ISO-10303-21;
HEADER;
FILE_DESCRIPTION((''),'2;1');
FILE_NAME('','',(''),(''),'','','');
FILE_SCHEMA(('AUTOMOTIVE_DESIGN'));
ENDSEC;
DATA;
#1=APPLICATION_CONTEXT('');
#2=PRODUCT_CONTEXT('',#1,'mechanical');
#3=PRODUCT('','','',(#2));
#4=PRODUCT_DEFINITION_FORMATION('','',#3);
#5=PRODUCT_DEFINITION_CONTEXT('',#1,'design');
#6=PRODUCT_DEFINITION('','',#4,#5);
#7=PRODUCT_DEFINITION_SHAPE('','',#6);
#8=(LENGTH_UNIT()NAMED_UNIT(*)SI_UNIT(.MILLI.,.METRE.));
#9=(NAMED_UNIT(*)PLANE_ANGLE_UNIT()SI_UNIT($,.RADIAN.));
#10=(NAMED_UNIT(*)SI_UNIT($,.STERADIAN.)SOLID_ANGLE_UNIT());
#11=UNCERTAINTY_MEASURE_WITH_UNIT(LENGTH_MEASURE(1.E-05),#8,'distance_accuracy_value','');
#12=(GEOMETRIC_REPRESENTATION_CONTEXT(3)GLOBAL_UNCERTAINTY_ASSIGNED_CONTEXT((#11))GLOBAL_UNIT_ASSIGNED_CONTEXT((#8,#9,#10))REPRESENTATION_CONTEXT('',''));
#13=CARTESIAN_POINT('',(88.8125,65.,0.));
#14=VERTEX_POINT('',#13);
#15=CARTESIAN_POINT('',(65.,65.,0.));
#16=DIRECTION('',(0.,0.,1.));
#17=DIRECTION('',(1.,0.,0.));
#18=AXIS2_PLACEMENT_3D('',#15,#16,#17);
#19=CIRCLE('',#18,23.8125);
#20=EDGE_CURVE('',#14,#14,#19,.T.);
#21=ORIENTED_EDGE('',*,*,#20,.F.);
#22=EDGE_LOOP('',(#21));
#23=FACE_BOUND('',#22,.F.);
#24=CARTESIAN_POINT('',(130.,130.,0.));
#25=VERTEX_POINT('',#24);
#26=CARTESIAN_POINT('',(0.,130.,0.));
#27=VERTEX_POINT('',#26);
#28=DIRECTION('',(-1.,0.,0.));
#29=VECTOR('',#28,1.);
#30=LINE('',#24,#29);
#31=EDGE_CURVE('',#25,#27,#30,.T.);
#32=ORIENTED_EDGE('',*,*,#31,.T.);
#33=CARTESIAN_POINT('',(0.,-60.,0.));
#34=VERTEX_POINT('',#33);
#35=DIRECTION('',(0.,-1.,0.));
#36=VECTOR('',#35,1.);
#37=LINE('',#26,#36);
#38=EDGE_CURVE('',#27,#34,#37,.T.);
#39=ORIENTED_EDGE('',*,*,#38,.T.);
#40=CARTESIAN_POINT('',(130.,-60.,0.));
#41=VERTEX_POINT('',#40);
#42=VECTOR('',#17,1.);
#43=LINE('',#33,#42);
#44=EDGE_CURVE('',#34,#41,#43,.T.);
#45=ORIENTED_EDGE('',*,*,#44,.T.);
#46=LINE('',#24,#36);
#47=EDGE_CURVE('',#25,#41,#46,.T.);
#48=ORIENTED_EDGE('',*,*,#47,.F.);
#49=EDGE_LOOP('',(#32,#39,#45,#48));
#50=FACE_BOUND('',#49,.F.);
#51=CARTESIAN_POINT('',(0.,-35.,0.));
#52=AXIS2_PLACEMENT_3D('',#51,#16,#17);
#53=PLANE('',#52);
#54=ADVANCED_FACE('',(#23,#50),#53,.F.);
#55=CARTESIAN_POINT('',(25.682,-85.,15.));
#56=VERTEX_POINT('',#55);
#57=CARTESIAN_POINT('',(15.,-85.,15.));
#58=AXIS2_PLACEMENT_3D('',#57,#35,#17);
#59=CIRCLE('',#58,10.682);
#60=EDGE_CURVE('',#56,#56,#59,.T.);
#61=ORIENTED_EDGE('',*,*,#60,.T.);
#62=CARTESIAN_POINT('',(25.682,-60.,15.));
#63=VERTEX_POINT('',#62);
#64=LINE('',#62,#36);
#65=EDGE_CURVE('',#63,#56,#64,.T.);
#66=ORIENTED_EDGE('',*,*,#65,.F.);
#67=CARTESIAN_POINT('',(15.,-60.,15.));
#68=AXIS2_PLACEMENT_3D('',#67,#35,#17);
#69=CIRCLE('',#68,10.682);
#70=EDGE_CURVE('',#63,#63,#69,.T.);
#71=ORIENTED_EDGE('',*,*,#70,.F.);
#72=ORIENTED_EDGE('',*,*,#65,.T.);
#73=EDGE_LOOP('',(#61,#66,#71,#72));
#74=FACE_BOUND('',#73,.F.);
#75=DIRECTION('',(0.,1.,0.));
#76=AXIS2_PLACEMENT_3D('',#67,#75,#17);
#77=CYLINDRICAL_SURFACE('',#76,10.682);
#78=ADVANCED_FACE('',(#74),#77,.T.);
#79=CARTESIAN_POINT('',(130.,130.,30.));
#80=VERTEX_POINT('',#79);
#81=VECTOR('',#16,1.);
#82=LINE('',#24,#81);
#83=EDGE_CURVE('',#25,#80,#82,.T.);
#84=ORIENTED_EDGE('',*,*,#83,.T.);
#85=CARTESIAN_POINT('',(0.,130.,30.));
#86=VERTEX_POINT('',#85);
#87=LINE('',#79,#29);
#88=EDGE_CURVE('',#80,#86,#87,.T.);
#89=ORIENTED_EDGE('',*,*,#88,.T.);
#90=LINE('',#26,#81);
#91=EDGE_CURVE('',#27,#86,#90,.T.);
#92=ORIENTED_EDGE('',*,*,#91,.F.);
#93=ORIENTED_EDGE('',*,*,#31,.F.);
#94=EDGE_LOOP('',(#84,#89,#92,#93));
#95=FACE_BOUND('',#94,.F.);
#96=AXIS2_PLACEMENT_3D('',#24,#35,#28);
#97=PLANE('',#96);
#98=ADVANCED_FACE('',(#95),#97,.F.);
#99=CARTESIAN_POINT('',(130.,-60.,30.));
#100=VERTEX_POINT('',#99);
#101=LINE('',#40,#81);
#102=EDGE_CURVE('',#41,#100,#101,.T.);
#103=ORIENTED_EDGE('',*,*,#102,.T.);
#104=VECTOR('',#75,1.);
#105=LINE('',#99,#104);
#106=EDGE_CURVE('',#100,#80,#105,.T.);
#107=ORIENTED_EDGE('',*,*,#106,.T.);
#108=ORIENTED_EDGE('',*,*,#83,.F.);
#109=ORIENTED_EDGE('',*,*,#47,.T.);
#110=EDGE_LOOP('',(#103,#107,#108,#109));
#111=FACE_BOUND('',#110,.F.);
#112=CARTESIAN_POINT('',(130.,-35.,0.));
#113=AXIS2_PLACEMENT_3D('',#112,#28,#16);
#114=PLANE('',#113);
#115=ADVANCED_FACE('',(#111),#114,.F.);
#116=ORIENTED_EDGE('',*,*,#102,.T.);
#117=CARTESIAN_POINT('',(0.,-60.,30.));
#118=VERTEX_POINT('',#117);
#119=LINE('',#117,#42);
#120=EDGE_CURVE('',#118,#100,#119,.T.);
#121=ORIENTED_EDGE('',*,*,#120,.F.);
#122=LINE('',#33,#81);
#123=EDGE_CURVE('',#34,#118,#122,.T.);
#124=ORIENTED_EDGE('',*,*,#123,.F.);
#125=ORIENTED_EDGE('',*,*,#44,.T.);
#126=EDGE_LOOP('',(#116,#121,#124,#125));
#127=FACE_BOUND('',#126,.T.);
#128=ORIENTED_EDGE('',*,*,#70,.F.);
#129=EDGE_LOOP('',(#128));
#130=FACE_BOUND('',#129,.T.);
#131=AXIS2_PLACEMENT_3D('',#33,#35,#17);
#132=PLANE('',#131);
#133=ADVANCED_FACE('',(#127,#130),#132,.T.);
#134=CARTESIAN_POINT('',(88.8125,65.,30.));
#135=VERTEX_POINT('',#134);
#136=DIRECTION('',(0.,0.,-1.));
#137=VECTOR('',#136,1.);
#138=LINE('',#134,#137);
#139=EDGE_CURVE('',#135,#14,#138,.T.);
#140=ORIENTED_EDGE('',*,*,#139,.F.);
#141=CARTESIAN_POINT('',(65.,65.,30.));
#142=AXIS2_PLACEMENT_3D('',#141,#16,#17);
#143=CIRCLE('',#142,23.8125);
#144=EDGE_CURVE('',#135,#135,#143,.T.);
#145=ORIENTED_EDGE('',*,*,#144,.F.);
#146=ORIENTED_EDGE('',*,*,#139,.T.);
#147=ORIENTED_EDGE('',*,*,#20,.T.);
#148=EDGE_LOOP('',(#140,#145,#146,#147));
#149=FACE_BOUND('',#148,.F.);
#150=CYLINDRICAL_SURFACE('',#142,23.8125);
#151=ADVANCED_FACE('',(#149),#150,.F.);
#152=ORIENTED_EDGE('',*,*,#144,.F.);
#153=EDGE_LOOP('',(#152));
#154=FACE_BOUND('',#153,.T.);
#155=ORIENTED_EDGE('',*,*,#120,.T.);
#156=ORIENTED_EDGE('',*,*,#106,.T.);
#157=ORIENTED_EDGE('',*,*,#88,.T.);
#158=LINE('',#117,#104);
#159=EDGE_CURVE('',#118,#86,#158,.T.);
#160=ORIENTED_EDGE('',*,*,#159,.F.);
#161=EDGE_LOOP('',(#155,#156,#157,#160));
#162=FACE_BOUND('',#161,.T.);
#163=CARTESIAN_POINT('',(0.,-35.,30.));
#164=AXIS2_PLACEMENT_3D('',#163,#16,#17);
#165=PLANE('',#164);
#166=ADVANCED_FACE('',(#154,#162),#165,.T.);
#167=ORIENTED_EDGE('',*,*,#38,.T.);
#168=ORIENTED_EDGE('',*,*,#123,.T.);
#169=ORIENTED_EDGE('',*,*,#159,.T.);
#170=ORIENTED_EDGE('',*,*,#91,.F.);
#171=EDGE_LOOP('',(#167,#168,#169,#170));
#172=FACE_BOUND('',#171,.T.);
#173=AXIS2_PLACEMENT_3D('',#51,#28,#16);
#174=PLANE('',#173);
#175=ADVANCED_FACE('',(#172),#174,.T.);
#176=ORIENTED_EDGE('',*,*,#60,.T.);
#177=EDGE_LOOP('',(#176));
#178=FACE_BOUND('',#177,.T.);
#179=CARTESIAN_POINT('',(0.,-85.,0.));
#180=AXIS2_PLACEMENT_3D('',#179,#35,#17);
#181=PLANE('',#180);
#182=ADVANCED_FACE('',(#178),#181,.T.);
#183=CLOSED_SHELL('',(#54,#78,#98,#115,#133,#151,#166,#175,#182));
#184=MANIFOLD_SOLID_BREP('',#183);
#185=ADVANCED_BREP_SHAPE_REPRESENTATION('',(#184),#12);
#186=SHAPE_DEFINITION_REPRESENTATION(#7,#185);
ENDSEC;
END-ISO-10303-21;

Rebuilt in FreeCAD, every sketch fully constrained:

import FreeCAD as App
import Part
import Sketcher
from FreeCAD import Vector


def add_polygon(sketch, points):
    """Adds a closed chain of lines whose ends are joined by coincident constraints."""
    first, n = sketch.GeometryCount, len(points)
    for a, b in zip(points, points[1:] + points[:1]):
        sketch.addGeometry(Part.LineSegment(App.Vector(*a, 0), App.Vector(*b, 0)), False)
    for i in range(n):
        sketch.addConstraint(Sketcher.Constraint("Coincident", first + i, 2, first + (i + 1) % n, 1))

doc = App.newDocument("Part")
body = doc.addObject("PartDesign::Body", "Body")

# Sketch on XY plane
sketch1 = body.newObject("Sketcher::SketchObject", "Sketch")
sketch1.AttachmentSupport = (doc.getObject("XY_Plane"), [""])
sketch1.MapMode = "FlatFace"
add_polygon(sketch1, [(0, 130), (0, 0), (130, 0), (130, 130)])  # lines 0-3
sketch1.addConstraint([
    Sketcher.Constraint("Vertical", 0),
    Sketcher.Constraint("Horizontal", 1),
    Sketcher.Constraint("Vertical", 2),
    Sketcher.Constraint("Horizontal", 3),
    Sketcher.Constraint("Coincident", 0, 2, -1, 1),
    Sketcher.Constraint("Equal", 3, 0),
    Sketcher.Constraint("DistanceX", 1, 1, 1, 2, 130.0),
])
pad1 = body.newObject("PartDesign::Pad", "Pad")
pad1.Profile = sketch1
pad1.Length = 30

# Sketch on XY plane
sketch2 = body.newObject("Sketcher::SketchObject", "Sketch001")
sketch2.AttachmentSupport = (doc.getObject("XY_Plane"), [""])
sketch2.MapMode = "FlatFace"
sketch2.AttachmentOffset = App.Placement(Vector(0, 0, 30), App.Rotation())
sketch2.addGeometry(Part.Circle(Vector(65, 65, 0), Vector(0, 0, 1), 23.8125), False)
sketch2.addConstraint([
    Sketcher.Constraint("Diameter", 0, 47.625),
    Sketcher.Constraint("DistanceX", -1, 1, 0, 3, 65.0),
    Sketcher.Constraint("DistanceY", -1, 1, 0, 3, 65.0),
])
pocket1 = body.newObject("PartDesign::Pocket", "Pocket")
pocket1.Profile = sketch2
pocket1.Length = 40

# Sketch on XZ plane
sketch3 = body.newObject("Sketcher::SketchObject", "Sketch002")
sketch3.AttachmentSupport = (doc.getObject("XZ_Plane"), [""])
sketch3.MapMode = "FlatFace"
add_polygon(sketch3, [(0, 0), (130, 0), (130, 30), (0, 30)])  # lines 0-3
sketch3.addConstraint([
    Sketcher.Constraint("Horizontal", 0),
    Sketcher.Constraint("Vertical", 1),
    Sketcher.Constraint("Horizontal", 2),
    Sketcher.Constraint("Vertical", 3),
    Sketcher.Constraint("Coincident", 3, 2, -1, 1),
    Sketcher.Constraint("DistanceX", 0, 1, 0, 2, 130.0),
    Sketcher.Constraint("DistanceY", 1, 1, 1, 2, 30.0),
])
pad2 = body.newObject("PartDesign::Pad", "Pad001")
pad2.Profile = sketch3
pad2.Length = 40

# Sketch on XZ plane
sketch4 = body.newObject("Sketcher::SketchObject", "Sketch003")
sketch4.AttachmentSupport = (doc.getObject("XZ_Plane"), [""])
sketch4.MapMode = "FlatFace"
sketch4.AttachmentOffset = App.Placement(Vector(0, 0, 40), App.Rotation())
add_polygon(sketch4, [(130, 0), (130, 30), (0, 30), (0, 0)])  # lines 0-3
sketch4.addConstraint([
    Sketcher.Constraint("Vertical", 0),
    Sketcher.Constraint("Horizontal", 1),
    Sketcher.Constraint("Vertical", 2),
    Sketcher.Constraint("Horizontal", 3),
    Sketcher.Constraint("Coincident", 2, 2, -1, 1),
    Sketcher.Constraint("DistanceX", 1, 2, 1, 1, 130.0),
    Sketcher.Constraint("DistanceY", 0, 1, 0, 2, 30.0),
])
pocket2 = body.newObject("PartDesign::Pocket", "Pocket001")
pocket2.Profile = sketch4
pocket2.Length = 20

# Sketch on XZ plane
sketch5 = body.newObject("Sketcher::SketchObject", "Sketch004")
sketch5.AttachmentSupport = (doc.getObject("XZ_Plane"), [""])
sketch5.MapMode = "FlatFace"
sketch5.AttachmentOffset = App.Placement(Vector(0, 0, 20), App.Rotation())
add_polygon(sketch5, [(130, 0), (130, 30), (0, 30), (0, 0)])  # lines 0-3
sketch5.addConstraint([
    Sketcher.Constraint("Vertical", 0),
    Sketcher.Constraint("Horizontal", 1),
    Sketcher.Constraint("Vertical", 2),
    Sketcher.Constraint("Horizontal", 3),
    Sketcher.Constraint("Coincident", 2, 2, -1, 1),
    Sketcher.Constraint("DistanceX", 1, 2, 1, 1, 130.0),
    Sketcher.Constraint("DistanceY", 0, 1, 0, 2, 30.0),
])
pad3 = body.newObject("PartDesign::Pad", "Pad002")
pad3.Profile = sketch5
pad3.Length = 40

# Sketch on XZ plane
sketch6 = body.newObject("Sketcher::SketchObject", "Sketch005")
sketch6.AttachmentSupport = (doc.getObject("XZ_Plane"), [""])
sketch6.MapMode = "FlatFace"
sketch6.AttachmentOffset = App.Placement(Vector(0, 0, 60), App.Rotation())
add_polygon(sketch6, [(130, 0), (130, 30), (0, 30), (0, 0)])  # lines 0-3
sketch6.addConstraint([
    Sketcher.Constraint("Vertical", 0),
    Sketcher.Constraint("Horizontal", 1),
    Sketcher.Constraint("Vertical", 2),
    Sketcher.Constraint("Horizontal", 3),
    Sketcher.Constraint("Coincident", 2, 2, -1, 1),
    Sketcher.Constraint("DistanceX", 1, 2, 1, 1, 130.0),
    Sketcher.Constraint("DistanceY", 0, 1, 0, 2, 30.0),
])
pocket3 = body.newObject("PartDesign::Pocket", "Pocket002")
pocket3.Profile = sketch6
pocket3.Length = 15

# Sketch on XZ plane
sketch7 = body.newObject("Sketcher::SketchObject", "Sketch006")
sketch7.AttachmentSupport = (doc.getObject("XZ_Plane"), [""])
sketch7.MapMode = "FlatFace"
sketch7.AttachmentOffset = App.Placement(Vector(0, 0, 45), App.Rotation())
add_polygon(sketch7, [(130, 0), (130, 30), (0, 30), (0, 0)])  # lines 0-3
sketch7.addConstraint([
    Sketcher.Constraint("Vertical", 0),
    Sketcher.Constraint("Horizontal", 1),
    Sketcher.Constraint("Vertical", 2),
    Sketcher.Constraint("Horizontal", 3),
    Sketcher.Constraint("Coincident", 2, 2, -1, 1),
    Sketcher.Constraint("DistanceX", 1, 2, 1, 1, 130.0),
    Sketcher.Constraint("DistanceY", 0, 1, 0, 2, 30.0),
])
pocket4 = body.newObject("PartDesign::Pocket", "Pocket003")
pocket4.Profile = sketch7
pocket4.Length = 10

# Sketch on XZ plane
sketch8 = body.newObject("Sketcher::SketchObject", "Sketch007")
sketch8.AttachmentSupport = (doc.getObject("XZ_Plane"), [""])
sketch8.MapMode = "FlatFace"
sketch8.AttachmentOffset = App.Placement(Vector(0, 0, 35), App.Rotation())
sketch8.addGeometry(Part.Circle(Vector(25, 15, 0), Vector(0, 0, 1), 10.682), False)
sketch8.addConstraint([
    Sketcher.Constraint("Diameter", 0, 21.364),
    Sketcher.Constraint("DistanceX", -1, 1, 0, 3, 25.0),
    Sketcher.Constraint("DistanceY", -1, 1, 0, 3, 15.0),
])
pad4 = body.newObject("PartDesign::Pad", "Pad003")
pad4.Profile = sketch8
pad4.Length = 15

# Sketch on XZ plane
sketch9 = body.newObject("Sketcher::SketchObject", "Sketch008")
sketch9.AttachmentSupport = (doc.getObject("XZ_Plane"), [""])
sketch9.MapMode = "FlatFace"
sketch9.AttachmentOffset = App.Placement(Vector(0, 0, 35), App.Rotation())
add_polygon(sketch9, [(0, 30), (0, 0), (130, 0), (130, 30)])  # lines 0-3
sketch9.addConstraint([
    Sketcher.Constraint("Vertical", 0),
    Sketcher.Constraint("Horizontal", 1),
    Sketcher.Constraint("Vertical", 2),
    Sketcher.Constraint("Horizontal", 3),
    Sketcher.Constraint("Coincident", 0, 2, -1, 1),
    Sketcher.Constraint("DistanceX", 1, 1, 1, 2, 130.0),
    Sketcher.Constraint("DistanceY", 0, 2, 0, 1, 30.0),
])
pad5 = body.newObject("PartDesign::Pad", "Pad004")
pad5.Profile = sketch9
pad5.Length = 25

# Sketch on XZ plane
sketch10 = body.newObject("Sketcher::SketchObject", "Sketch009")
sketch10.AttachmentSupport = (doc.getObject("XZ_Plane"), [""])
sketch10.MapMode = "FlatFace"
sketch10.AttachmentOffset = App.Placement(Vector(0, 0, 60), App.Rotation())
sketch10.addGeometry(Part.Circle(Vector(15, 15, 0), Vector(0, 0, 1), 10.682), False)
sketch10.addConstraint([
    Sketcher.Constraint("Diameter", 0, 21.364),
    Sketcher.Constraint("DistanceX", -1, 1, 0, 3, 15.0),
    Sketcher.Constraint("DistanceY", -1, 1, 0, 3, 15.0),
])
pad6 = body.newObject("PartDesign::Pad", "Pad005")
pad6.Profile = sketch10
pad6.Length = 25

doc.recompute()
